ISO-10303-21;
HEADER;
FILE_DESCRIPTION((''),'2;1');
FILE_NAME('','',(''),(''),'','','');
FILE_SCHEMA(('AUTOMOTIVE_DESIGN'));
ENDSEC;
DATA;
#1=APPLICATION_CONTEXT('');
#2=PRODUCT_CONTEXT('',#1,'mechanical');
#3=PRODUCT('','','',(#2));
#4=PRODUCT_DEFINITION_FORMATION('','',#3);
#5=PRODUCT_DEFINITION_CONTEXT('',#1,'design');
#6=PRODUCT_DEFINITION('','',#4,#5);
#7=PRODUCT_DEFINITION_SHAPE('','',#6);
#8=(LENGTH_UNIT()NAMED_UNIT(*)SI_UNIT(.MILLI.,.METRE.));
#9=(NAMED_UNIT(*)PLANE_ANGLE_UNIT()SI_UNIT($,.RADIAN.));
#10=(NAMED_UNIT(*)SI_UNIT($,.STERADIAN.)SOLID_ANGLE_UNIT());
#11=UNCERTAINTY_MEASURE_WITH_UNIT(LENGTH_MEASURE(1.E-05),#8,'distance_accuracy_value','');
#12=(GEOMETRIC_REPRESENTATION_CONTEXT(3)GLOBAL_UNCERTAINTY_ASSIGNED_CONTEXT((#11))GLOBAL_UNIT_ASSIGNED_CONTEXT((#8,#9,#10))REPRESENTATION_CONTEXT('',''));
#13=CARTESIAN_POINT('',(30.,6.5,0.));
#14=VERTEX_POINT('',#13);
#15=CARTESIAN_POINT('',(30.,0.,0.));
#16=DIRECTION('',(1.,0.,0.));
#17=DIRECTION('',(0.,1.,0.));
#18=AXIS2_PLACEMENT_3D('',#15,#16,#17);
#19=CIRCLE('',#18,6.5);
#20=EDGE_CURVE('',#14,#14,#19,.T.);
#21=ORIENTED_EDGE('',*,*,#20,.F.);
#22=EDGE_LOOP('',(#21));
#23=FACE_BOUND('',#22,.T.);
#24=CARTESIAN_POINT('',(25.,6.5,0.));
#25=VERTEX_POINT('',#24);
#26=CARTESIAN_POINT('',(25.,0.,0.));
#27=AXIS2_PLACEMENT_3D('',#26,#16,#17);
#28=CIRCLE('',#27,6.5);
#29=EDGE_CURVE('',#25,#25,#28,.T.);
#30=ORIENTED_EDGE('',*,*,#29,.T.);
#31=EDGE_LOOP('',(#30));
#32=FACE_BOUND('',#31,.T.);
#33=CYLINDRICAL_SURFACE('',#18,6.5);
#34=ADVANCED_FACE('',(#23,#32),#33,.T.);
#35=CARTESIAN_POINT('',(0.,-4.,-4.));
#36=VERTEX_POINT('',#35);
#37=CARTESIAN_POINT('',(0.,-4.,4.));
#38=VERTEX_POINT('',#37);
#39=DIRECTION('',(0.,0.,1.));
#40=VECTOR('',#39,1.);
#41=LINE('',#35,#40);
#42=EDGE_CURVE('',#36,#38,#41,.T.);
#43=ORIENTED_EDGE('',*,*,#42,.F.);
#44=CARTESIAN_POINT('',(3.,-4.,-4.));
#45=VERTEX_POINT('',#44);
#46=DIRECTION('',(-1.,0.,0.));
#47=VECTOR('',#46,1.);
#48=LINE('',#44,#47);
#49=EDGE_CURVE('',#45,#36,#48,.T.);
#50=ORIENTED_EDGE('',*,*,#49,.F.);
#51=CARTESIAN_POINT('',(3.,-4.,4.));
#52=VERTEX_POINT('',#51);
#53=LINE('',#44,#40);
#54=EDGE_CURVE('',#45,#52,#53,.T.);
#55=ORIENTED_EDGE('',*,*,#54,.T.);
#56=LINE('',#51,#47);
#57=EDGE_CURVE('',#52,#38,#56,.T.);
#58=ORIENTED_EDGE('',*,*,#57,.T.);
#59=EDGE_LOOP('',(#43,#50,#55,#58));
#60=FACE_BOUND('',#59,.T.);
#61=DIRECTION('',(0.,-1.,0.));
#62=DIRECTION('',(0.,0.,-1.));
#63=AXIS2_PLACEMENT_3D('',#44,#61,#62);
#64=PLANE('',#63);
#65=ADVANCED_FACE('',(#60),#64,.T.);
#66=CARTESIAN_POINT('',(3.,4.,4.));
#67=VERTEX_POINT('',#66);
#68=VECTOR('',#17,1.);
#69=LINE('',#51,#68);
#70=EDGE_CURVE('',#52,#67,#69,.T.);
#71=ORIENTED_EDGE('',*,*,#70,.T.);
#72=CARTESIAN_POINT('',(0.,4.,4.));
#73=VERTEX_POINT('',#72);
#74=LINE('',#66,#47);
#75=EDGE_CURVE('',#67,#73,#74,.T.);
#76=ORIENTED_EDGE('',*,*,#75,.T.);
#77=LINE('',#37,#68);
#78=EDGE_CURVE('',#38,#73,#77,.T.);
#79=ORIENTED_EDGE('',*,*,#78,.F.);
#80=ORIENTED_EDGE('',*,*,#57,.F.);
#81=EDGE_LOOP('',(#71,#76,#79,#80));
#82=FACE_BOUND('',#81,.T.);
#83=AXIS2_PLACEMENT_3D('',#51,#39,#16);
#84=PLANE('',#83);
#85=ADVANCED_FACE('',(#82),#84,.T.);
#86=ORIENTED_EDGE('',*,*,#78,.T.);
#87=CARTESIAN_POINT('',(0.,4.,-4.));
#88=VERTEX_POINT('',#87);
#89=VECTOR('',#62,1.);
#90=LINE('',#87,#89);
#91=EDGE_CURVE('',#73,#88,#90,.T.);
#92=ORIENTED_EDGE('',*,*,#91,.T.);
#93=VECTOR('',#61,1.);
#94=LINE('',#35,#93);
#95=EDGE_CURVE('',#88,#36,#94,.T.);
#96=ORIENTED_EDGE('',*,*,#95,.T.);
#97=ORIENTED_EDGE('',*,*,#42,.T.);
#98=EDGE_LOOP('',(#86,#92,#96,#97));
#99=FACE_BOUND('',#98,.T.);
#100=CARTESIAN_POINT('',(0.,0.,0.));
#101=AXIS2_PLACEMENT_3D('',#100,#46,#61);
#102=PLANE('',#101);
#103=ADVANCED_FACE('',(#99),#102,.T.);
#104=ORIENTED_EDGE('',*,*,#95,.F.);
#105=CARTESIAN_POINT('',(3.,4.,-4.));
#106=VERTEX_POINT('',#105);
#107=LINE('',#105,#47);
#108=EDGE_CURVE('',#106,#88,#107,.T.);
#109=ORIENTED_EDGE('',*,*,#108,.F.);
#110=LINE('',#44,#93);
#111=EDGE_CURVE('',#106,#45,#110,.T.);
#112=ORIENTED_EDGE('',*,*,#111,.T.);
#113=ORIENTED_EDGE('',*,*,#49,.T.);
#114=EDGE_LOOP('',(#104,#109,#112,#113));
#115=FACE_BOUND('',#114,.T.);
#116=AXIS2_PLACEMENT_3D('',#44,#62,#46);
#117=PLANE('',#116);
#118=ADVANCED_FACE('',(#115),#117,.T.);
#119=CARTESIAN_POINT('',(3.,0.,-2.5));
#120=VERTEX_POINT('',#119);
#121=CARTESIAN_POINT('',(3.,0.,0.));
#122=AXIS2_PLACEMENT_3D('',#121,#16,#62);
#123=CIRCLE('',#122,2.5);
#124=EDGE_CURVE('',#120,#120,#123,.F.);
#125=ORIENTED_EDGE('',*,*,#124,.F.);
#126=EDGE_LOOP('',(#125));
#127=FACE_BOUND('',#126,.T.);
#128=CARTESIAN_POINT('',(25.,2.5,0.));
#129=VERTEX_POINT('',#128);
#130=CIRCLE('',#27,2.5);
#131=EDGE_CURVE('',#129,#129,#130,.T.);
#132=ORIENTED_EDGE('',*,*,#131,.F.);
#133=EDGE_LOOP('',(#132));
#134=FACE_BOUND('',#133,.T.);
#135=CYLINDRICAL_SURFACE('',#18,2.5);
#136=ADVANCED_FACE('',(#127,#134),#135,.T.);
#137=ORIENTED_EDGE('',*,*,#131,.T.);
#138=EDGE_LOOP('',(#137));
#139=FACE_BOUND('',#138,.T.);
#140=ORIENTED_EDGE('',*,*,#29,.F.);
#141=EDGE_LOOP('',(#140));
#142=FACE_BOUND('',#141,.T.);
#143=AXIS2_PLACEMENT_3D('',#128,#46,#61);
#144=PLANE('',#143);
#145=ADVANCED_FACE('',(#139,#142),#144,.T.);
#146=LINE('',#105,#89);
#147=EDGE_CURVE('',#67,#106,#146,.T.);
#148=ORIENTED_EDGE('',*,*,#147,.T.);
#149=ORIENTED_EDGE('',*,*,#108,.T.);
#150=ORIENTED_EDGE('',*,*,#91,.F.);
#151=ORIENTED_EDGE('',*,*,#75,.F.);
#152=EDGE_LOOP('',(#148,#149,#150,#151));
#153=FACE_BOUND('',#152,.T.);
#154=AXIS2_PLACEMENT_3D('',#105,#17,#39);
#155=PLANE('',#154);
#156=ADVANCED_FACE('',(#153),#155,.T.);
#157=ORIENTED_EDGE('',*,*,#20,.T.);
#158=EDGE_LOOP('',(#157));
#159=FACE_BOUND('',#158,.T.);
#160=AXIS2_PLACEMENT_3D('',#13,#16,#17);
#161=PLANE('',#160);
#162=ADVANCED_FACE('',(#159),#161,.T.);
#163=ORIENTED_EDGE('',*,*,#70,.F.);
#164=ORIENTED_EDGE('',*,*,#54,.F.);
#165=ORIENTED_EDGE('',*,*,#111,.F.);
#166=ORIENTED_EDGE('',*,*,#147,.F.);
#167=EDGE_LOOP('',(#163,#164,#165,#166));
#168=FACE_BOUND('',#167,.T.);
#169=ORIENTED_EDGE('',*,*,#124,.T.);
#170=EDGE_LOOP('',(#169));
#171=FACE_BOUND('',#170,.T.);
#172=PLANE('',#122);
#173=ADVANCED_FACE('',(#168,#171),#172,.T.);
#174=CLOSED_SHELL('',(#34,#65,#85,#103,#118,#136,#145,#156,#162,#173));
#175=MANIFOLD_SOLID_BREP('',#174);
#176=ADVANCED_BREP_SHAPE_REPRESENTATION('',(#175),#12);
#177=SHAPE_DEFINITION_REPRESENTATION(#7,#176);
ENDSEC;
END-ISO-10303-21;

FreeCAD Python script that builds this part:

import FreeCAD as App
import Part
import Sketcher
from FreeCAD import Vector

doc = App.newDocument("Part")
body = doc.addObject("PartDesign::Body", "Body")

# Sketch on XY plane
sketch1 = body.newObject("Sketcher::SketchObject", "Sketch")
sketch1.AttachmentSupport = (doc.getObject("XY_Plane"), [""])
sketch1.MapMode = "FlatFace"
sketch1.addGeometry([
    Part.LineSegment(Vector(0, 2.5, 0), Vector(0, 0, 0)),  # 0
    Part.LineSegment(Vector(0, 0, 0), Vector(30, 0, 0)),  # 1
    Part.LineSegment(Vector(30, 0, 0), Vector(30, 6.5, 0)),  # 2
    Part.LineSegment(Vector(30, 6.5, 0), Vector(25, 6.5, 0)),  # 3
    Part.LineSegment(Vector(25, 6.5, 0), Vector(25, 2.5, 0)),  # 4
    Part.LineSegment(Vector(25, 2.5, 0), Vector(0, 2.5, 0)),  # 5
], False)
sketch1.addConstraint([
    Sketcher.Constraint("Coincident", 0, 2, 1, 1),
    Sketcher.Constraint("Coincident", 1, 2, 2, 1),
    Sketcher.Constraint("Coincident", 2, 2, 3, 1),
    Sketcher.Constraint("Coincident", 3, 2, 4, 1),
    Sketcher.Constraint("Coincident", 4, 2, 5, 1),
    Sketcher.Constraint("Coincident", 5, 2, 0, 1),
    Sketcher.Constraint("Vertical", 0),
    Sketcher.Constraint("Horizontal", 1),
    Sketcher.Constraint("Vertical", 2),
    Sketcher.Constraint("Horizontal", 3),
    Sketcher.Constraint("Vertical", 4),
    Sketcher.Constraint("Horizontal", 5),
    Sketcher.Constraint("Coincident", 0, 2, -1, 1),
    Sketcher.Constraint("DistanceX", 1, 1, 1, 2, 30.0),
    Sketcher.Constraint("DistanceX", 3, 2, 3, 1, 5.0),
    Sketcher.Constraint("DistanceY", 4, 2, 4, 1, 4.0),
    Sketcher.Constraint("DistanceY", 0, 2, 0, 1, 2.5),
])
revolution = body.newObject("PartDesign::Revolution", "Revolution")
revolution.Profile = sketch1
revolution.ReferenceAxis = (sketch1, ["H_Axis"])
revolution.Angle = 360

# Sketch on YZ plane
sketch2 = body.newObject("Sketcher::SketchObject", "Sketch001")
sketch2.AttachmentSupport = (doc.getObject("YZ_Plane"), [""])
sketch2.MapMode = "FlatFace"
sketch2.addGeometry([
    Part.LineSegment(Vector(4, -4, 0), Vector(-4, -4, 0)),
    Part.LineSegment(Vector(-4, -4, 0), Vector(-4, 4, 0)),
    Part.LineSegment(Vector(-4, 4, 0), Vector(4, 4, 0)),
    Part.LineSegment(Vector(4, 4, 0), Vector(4, -4, 0)),
], False)
sketch2.addConstraint([
    Sketcher.Constraint("Coincident", 0, 2, 1, 1),
    Sketcher.Constraint("Coincident", 1, 2, 2, 1),
    Sketcher.Constraint("Coincident", 2, 2, 3, 1),
    Sketcher.Constraint("Coincident", 3, 2, 0, 1),
    Sketcher.Constraint("Horizontal", 0),
    Sketcher.Constraint("Vertical", 1),
    Sketcher.Constraint("Horizontal", 2),
    Sketcher.Constraint("Vertical", 3),
    Sketcher.Constraint("Symmetric", 0, 2, 2, 2, -1, 1),
    Sketcher.Constraint("Equal", 2, 1),
    Sketcher.Constraint("DistanceX", 0, 2, 0, 1, 8.0),
])
pad1 = body.newObject("PartDesign::Pad", "Pad")
pad1.Profile = sketch2
pad1.Length = 3

doc.recompute()
